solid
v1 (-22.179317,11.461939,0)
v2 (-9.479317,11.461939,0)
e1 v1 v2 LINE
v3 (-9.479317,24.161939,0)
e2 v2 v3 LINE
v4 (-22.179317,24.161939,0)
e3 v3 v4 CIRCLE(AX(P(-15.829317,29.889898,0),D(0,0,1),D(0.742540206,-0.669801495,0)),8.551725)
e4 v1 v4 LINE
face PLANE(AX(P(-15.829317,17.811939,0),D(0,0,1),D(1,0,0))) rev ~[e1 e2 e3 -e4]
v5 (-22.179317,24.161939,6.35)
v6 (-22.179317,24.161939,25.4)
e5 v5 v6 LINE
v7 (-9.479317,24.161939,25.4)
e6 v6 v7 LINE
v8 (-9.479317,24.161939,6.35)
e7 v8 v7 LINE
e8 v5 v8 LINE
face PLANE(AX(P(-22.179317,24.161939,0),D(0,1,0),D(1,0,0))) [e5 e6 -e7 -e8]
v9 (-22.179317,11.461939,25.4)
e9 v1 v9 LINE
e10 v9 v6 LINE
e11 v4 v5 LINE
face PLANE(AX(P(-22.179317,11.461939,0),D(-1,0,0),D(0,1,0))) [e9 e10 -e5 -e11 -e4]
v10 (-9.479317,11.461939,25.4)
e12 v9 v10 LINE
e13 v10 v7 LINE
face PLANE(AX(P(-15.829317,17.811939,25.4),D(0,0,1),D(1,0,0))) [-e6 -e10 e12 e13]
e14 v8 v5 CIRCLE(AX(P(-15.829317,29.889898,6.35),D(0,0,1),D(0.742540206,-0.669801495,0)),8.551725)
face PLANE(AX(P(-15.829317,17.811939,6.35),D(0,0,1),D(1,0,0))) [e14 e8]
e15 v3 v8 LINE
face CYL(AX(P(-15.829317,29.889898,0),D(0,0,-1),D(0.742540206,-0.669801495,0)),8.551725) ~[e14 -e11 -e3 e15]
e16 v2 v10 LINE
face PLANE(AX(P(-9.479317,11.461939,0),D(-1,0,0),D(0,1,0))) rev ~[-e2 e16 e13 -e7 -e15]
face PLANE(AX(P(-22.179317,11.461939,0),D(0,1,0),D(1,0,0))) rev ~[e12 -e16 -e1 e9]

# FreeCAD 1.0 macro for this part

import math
import FreeCAD as App
import Part
import Sketcher
from FreeCAD import Vector
Q = App.Units.Quantity

doc = App.newDocument("Part")
body = doc.addObject("PartDesign::Body", "Body")

# Sketch on XY plane
sketch1 = body.newObject("Sketcher::SketchObject", "Sketch")
sketch1.AttachmentSupport = (doc.getObject("XY_Plane"), [""])
sketch1.MapMode = "FlatFace"
sketch1.addGeometry([
    Part.LineSegment(Vector(-22.179317, 24.161939, 0), Vector(-22.179317, 11.461939, 0)),
    Part.LineSegment(Vector(-22.179317, 11.461939, 0), Vector(-9.479317, 11.461939, 0)),
    Part.LineSegment(Vector(-9.479317, 11.461939, 0), Vector(-9.479317, 24.161939, 0)),
    Part.LineSegment(Vector(-9.479317, 24.161939, 0), Vector(-22.179317, 24.161939, 0)),
], False)
sketch1.addConstraint([
    Sketcher.Constraint("Coincident", 0, 2, 1, 1),
    Sketcher.Constraint("Coincident", 1, 2, 2, 1),
    Sketcher.Constraint("Coincident", 2, 2, 3, 1),
    Sketcher.Constraint("Coincident", 3, 2, 0, 1),
    Sketcher.Constraint("Vertical", 0),
    Sketcher.Constraint("Horizontal", 1),
    Sketcher.Constraint("Vertical", 2),
    Sketcher.Constraint("Horizontal", 3),
    Sketcher.Constraint("Equal", 3, 0),
    Sketcher.Constraint("DistanceX", 1, 1, 1, 2, Q("0.5 in")),
    Sketcher.Constraint("DistanceY", -1, 1, 0, 2, Q("11.461939 mm")),
    Sketcher.Constraint("DistanceX", 0, 2, -1, 1, Q("22.179317 mm")),
])
pad1 = body.newObject("PartDesign::Pad", "Pad")
pad1.Profile = sketch1
pad1.Length = Q("1 in")

# Sketch on XY plane
sketch2 = body.newObject("Sketcher::SketchObject", "Sketch001")
sketch2.AttachmentSupport = (doc.getObject("XY_Plane"), [""])
sketch2.MapMode = "FlatFace"
sketch2.addGeometry([
    Part.LineSegment(Vector(-22.179317, 24.161939, 0), Vector(-22.179317, 11.461939, 0)),
    Part.LineSegment(Vector(-22.179317, 11.461939, 0), Vector(-9.479317, 11.461939, 0)),
    Part.LineSegment(Vector(-9.479317, 11.461939, 0), Vector(-9.479317, 24.161939, 0)),
    Part.ArcOfCircle(Part.Circle(Vector(-15.829317, 29.889898, 0), Vector(0, 0, 1), 8.551725), math.radians(-42.051746), math.radians(222.051746)),
], False)
sketch2.addConstraint([
    Sketcher.Constraint("Coincident", 0, 2, 1, 1),
    Sketcher.Constraint("Coincident", 1, 2, 2, 1),
    Sketcher.Constraint("Coincident", 2, 2, 3, 1),
    Sketcher.Constraint("Coincident", 3, 2, 0, 1),
    Sketcher.Constraint("Vertical", 0),
    Sketcher.Constraint("Horizontal", 1),
    Sketcher.Constraint("Vertical", 2),
    Sketcher.Constraint("Horizontal", 2, 2, 3, 2),
    Sketcher.Constraint("Equal", 1, 0),
    Sketcher.Constraint("DistanceX", 1, 1, 1, 2, Q("0.5 in")),
    Sketcher.Constraint("Radius", 3, Q("8.551725 mm")),
    Sketcher.Constraint("DistanceY", -1, 1, 0, 2, Q("11.461939 mm")),
    Sketcher.Constraint("DistanceX", 3, 3, -1, 1, Q("15.829317 mm")),
])
pad2 = body.newObject("PartDesign::Pad", "Pad001")
pad2.Profile = sketch2
pad2.Length = Q("0.25 in")

doc.recompute()
